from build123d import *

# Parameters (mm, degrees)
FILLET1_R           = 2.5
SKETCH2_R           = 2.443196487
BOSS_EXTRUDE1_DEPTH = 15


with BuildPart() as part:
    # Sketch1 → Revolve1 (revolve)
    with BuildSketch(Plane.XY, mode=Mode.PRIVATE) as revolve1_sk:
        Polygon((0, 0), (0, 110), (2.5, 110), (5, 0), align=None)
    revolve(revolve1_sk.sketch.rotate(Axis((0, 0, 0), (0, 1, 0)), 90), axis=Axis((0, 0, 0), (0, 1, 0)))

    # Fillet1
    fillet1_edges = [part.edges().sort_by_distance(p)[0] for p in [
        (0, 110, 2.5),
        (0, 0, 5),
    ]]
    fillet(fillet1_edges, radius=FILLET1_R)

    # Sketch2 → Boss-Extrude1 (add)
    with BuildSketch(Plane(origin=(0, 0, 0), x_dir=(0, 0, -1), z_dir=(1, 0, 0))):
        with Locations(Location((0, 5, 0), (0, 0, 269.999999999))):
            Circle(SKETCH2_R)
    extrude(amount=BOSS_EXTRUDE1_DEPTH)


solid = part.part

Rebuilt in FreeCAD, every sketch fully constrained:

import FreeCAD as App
import Part
import Sketcher
Q = App.Units.Quantity


def edges_at(feature, points):
    """Names of the edges that pass closest to the given points."""
    edges = feature.Shape.Edges
    near = lambda p: min(range(len(edges)), key=lambda i: edges[i].distToShape(Part.Vertex(*p))[0])
    return sorted({f"Edge{near(p) + 1}" for p in points})

doc = App.newDocument("Part")
body = doc.addObject("PartDesign::Body", "Body")

sketch1 = body.newObject("Sketcher::SketchObject", "Sketch")
sketch1.AttachmentSupport = (doc.getObject("XY_Plane"), [""])
sketch1.MapMode = "FlatFace"
sketch1.addGeometry(Part.LineSegment(App.Vector(0, 110, 0), App.Vector(0, 0, 0)), False)
sketch1.addGeometry(Part.LineSegment(App.Vector(0, 0, 0), App.Vector(5, 0, 0)), False)
sketch1.addGeometry(Part.LineSegment(App.Vector(5, 0, 0), App.Vector(2.5, 110, 0)), False)
sketch1.addGeometry(Part.LineSegment(App.Vector(2.5, 110, 0), App.Vector(0, 110, 0)), False)
sketch1.addConstraint(Sketcher.Constraint("Coincident", 0, 2, 1, 1))
sketch1.addConstraint(Sketcher.Constraint("Coincident", 1, 2, 2, 1))
sketch1.addConstraint(Sketcher.Constraint("Coincident", 2, 2, 3, 1))
sketch1.addConstraint(Sketcher.Constraint("Coincident", 3, 2, 0, 1))
sketch1.addConstraint(Sketcher.Constraint("Vertical", 0))
sketch1.addConstraint(Sketcher.Constraint("Horizontal", 1))
sketch1.addConstraint(Sketcher.Constraint("Horizontal", 3))
sketch1.addConstraint(Sketcher.Constraint("Coincident", 0, 2, -1, 1))
sketch1.addConstraint(Sketcher.Constraint("DistanceX", 1, 1, 1, 2, Q("5 mm")))
sketch1.addConstraint(Sketcher.Constraint("DistanceY", 0, 2, 0, 1, Q("110 mm")))
sketch1.addConstraint(Sketcher.Constraint("DistanceX", 3, 2, 3, 1, Q("2.5 mm")))
revolution = body.newObject("PartDesign::Revolution", "Revolution")
revolution.Profile = sketch1
revolution.ReferenceAxis = (sketch1, ["V_Axis"])
revolution.Angle = 360
doc.recompute()

fillet = body.newObject("PartDesign::Fillet", "Fillet")
fillet.Base = (revolution, edges_at(revolution, [(0, 110, 2.5), (0, 0, 5)]))
fillet.Radius = 2.5

sketch2 = body.newObject("Sketcher::SketchObject", "Sketch001")
sketch2.AttachmentSupport = (doc.getObject("YZ_Plane"), [""])
sketch2.MapMode = "FlatFace"
sketch2.addGeometry(Part.Circle(App.Vector(5, 0, 0), App.Vector(0, 0, 1), 2.4), False)
sketch2.addConstraint(Sketcher.Constraint("PointOnObject", 0, 3, -1))
sketch2.addConstraint(Sketcher.Constraint("DistanceX", -1, 1, 0, 3, Q("5 mm")))
sketch2.addConstraint(Sketcher.Constraint("Diameter", 0, Q("4.886393 mm")))
pad1 = body.newObject("PartDesign::Pad", "Pad")
pad1.Profile = sketch2
pad1.Length = 15

doc.recompute()
